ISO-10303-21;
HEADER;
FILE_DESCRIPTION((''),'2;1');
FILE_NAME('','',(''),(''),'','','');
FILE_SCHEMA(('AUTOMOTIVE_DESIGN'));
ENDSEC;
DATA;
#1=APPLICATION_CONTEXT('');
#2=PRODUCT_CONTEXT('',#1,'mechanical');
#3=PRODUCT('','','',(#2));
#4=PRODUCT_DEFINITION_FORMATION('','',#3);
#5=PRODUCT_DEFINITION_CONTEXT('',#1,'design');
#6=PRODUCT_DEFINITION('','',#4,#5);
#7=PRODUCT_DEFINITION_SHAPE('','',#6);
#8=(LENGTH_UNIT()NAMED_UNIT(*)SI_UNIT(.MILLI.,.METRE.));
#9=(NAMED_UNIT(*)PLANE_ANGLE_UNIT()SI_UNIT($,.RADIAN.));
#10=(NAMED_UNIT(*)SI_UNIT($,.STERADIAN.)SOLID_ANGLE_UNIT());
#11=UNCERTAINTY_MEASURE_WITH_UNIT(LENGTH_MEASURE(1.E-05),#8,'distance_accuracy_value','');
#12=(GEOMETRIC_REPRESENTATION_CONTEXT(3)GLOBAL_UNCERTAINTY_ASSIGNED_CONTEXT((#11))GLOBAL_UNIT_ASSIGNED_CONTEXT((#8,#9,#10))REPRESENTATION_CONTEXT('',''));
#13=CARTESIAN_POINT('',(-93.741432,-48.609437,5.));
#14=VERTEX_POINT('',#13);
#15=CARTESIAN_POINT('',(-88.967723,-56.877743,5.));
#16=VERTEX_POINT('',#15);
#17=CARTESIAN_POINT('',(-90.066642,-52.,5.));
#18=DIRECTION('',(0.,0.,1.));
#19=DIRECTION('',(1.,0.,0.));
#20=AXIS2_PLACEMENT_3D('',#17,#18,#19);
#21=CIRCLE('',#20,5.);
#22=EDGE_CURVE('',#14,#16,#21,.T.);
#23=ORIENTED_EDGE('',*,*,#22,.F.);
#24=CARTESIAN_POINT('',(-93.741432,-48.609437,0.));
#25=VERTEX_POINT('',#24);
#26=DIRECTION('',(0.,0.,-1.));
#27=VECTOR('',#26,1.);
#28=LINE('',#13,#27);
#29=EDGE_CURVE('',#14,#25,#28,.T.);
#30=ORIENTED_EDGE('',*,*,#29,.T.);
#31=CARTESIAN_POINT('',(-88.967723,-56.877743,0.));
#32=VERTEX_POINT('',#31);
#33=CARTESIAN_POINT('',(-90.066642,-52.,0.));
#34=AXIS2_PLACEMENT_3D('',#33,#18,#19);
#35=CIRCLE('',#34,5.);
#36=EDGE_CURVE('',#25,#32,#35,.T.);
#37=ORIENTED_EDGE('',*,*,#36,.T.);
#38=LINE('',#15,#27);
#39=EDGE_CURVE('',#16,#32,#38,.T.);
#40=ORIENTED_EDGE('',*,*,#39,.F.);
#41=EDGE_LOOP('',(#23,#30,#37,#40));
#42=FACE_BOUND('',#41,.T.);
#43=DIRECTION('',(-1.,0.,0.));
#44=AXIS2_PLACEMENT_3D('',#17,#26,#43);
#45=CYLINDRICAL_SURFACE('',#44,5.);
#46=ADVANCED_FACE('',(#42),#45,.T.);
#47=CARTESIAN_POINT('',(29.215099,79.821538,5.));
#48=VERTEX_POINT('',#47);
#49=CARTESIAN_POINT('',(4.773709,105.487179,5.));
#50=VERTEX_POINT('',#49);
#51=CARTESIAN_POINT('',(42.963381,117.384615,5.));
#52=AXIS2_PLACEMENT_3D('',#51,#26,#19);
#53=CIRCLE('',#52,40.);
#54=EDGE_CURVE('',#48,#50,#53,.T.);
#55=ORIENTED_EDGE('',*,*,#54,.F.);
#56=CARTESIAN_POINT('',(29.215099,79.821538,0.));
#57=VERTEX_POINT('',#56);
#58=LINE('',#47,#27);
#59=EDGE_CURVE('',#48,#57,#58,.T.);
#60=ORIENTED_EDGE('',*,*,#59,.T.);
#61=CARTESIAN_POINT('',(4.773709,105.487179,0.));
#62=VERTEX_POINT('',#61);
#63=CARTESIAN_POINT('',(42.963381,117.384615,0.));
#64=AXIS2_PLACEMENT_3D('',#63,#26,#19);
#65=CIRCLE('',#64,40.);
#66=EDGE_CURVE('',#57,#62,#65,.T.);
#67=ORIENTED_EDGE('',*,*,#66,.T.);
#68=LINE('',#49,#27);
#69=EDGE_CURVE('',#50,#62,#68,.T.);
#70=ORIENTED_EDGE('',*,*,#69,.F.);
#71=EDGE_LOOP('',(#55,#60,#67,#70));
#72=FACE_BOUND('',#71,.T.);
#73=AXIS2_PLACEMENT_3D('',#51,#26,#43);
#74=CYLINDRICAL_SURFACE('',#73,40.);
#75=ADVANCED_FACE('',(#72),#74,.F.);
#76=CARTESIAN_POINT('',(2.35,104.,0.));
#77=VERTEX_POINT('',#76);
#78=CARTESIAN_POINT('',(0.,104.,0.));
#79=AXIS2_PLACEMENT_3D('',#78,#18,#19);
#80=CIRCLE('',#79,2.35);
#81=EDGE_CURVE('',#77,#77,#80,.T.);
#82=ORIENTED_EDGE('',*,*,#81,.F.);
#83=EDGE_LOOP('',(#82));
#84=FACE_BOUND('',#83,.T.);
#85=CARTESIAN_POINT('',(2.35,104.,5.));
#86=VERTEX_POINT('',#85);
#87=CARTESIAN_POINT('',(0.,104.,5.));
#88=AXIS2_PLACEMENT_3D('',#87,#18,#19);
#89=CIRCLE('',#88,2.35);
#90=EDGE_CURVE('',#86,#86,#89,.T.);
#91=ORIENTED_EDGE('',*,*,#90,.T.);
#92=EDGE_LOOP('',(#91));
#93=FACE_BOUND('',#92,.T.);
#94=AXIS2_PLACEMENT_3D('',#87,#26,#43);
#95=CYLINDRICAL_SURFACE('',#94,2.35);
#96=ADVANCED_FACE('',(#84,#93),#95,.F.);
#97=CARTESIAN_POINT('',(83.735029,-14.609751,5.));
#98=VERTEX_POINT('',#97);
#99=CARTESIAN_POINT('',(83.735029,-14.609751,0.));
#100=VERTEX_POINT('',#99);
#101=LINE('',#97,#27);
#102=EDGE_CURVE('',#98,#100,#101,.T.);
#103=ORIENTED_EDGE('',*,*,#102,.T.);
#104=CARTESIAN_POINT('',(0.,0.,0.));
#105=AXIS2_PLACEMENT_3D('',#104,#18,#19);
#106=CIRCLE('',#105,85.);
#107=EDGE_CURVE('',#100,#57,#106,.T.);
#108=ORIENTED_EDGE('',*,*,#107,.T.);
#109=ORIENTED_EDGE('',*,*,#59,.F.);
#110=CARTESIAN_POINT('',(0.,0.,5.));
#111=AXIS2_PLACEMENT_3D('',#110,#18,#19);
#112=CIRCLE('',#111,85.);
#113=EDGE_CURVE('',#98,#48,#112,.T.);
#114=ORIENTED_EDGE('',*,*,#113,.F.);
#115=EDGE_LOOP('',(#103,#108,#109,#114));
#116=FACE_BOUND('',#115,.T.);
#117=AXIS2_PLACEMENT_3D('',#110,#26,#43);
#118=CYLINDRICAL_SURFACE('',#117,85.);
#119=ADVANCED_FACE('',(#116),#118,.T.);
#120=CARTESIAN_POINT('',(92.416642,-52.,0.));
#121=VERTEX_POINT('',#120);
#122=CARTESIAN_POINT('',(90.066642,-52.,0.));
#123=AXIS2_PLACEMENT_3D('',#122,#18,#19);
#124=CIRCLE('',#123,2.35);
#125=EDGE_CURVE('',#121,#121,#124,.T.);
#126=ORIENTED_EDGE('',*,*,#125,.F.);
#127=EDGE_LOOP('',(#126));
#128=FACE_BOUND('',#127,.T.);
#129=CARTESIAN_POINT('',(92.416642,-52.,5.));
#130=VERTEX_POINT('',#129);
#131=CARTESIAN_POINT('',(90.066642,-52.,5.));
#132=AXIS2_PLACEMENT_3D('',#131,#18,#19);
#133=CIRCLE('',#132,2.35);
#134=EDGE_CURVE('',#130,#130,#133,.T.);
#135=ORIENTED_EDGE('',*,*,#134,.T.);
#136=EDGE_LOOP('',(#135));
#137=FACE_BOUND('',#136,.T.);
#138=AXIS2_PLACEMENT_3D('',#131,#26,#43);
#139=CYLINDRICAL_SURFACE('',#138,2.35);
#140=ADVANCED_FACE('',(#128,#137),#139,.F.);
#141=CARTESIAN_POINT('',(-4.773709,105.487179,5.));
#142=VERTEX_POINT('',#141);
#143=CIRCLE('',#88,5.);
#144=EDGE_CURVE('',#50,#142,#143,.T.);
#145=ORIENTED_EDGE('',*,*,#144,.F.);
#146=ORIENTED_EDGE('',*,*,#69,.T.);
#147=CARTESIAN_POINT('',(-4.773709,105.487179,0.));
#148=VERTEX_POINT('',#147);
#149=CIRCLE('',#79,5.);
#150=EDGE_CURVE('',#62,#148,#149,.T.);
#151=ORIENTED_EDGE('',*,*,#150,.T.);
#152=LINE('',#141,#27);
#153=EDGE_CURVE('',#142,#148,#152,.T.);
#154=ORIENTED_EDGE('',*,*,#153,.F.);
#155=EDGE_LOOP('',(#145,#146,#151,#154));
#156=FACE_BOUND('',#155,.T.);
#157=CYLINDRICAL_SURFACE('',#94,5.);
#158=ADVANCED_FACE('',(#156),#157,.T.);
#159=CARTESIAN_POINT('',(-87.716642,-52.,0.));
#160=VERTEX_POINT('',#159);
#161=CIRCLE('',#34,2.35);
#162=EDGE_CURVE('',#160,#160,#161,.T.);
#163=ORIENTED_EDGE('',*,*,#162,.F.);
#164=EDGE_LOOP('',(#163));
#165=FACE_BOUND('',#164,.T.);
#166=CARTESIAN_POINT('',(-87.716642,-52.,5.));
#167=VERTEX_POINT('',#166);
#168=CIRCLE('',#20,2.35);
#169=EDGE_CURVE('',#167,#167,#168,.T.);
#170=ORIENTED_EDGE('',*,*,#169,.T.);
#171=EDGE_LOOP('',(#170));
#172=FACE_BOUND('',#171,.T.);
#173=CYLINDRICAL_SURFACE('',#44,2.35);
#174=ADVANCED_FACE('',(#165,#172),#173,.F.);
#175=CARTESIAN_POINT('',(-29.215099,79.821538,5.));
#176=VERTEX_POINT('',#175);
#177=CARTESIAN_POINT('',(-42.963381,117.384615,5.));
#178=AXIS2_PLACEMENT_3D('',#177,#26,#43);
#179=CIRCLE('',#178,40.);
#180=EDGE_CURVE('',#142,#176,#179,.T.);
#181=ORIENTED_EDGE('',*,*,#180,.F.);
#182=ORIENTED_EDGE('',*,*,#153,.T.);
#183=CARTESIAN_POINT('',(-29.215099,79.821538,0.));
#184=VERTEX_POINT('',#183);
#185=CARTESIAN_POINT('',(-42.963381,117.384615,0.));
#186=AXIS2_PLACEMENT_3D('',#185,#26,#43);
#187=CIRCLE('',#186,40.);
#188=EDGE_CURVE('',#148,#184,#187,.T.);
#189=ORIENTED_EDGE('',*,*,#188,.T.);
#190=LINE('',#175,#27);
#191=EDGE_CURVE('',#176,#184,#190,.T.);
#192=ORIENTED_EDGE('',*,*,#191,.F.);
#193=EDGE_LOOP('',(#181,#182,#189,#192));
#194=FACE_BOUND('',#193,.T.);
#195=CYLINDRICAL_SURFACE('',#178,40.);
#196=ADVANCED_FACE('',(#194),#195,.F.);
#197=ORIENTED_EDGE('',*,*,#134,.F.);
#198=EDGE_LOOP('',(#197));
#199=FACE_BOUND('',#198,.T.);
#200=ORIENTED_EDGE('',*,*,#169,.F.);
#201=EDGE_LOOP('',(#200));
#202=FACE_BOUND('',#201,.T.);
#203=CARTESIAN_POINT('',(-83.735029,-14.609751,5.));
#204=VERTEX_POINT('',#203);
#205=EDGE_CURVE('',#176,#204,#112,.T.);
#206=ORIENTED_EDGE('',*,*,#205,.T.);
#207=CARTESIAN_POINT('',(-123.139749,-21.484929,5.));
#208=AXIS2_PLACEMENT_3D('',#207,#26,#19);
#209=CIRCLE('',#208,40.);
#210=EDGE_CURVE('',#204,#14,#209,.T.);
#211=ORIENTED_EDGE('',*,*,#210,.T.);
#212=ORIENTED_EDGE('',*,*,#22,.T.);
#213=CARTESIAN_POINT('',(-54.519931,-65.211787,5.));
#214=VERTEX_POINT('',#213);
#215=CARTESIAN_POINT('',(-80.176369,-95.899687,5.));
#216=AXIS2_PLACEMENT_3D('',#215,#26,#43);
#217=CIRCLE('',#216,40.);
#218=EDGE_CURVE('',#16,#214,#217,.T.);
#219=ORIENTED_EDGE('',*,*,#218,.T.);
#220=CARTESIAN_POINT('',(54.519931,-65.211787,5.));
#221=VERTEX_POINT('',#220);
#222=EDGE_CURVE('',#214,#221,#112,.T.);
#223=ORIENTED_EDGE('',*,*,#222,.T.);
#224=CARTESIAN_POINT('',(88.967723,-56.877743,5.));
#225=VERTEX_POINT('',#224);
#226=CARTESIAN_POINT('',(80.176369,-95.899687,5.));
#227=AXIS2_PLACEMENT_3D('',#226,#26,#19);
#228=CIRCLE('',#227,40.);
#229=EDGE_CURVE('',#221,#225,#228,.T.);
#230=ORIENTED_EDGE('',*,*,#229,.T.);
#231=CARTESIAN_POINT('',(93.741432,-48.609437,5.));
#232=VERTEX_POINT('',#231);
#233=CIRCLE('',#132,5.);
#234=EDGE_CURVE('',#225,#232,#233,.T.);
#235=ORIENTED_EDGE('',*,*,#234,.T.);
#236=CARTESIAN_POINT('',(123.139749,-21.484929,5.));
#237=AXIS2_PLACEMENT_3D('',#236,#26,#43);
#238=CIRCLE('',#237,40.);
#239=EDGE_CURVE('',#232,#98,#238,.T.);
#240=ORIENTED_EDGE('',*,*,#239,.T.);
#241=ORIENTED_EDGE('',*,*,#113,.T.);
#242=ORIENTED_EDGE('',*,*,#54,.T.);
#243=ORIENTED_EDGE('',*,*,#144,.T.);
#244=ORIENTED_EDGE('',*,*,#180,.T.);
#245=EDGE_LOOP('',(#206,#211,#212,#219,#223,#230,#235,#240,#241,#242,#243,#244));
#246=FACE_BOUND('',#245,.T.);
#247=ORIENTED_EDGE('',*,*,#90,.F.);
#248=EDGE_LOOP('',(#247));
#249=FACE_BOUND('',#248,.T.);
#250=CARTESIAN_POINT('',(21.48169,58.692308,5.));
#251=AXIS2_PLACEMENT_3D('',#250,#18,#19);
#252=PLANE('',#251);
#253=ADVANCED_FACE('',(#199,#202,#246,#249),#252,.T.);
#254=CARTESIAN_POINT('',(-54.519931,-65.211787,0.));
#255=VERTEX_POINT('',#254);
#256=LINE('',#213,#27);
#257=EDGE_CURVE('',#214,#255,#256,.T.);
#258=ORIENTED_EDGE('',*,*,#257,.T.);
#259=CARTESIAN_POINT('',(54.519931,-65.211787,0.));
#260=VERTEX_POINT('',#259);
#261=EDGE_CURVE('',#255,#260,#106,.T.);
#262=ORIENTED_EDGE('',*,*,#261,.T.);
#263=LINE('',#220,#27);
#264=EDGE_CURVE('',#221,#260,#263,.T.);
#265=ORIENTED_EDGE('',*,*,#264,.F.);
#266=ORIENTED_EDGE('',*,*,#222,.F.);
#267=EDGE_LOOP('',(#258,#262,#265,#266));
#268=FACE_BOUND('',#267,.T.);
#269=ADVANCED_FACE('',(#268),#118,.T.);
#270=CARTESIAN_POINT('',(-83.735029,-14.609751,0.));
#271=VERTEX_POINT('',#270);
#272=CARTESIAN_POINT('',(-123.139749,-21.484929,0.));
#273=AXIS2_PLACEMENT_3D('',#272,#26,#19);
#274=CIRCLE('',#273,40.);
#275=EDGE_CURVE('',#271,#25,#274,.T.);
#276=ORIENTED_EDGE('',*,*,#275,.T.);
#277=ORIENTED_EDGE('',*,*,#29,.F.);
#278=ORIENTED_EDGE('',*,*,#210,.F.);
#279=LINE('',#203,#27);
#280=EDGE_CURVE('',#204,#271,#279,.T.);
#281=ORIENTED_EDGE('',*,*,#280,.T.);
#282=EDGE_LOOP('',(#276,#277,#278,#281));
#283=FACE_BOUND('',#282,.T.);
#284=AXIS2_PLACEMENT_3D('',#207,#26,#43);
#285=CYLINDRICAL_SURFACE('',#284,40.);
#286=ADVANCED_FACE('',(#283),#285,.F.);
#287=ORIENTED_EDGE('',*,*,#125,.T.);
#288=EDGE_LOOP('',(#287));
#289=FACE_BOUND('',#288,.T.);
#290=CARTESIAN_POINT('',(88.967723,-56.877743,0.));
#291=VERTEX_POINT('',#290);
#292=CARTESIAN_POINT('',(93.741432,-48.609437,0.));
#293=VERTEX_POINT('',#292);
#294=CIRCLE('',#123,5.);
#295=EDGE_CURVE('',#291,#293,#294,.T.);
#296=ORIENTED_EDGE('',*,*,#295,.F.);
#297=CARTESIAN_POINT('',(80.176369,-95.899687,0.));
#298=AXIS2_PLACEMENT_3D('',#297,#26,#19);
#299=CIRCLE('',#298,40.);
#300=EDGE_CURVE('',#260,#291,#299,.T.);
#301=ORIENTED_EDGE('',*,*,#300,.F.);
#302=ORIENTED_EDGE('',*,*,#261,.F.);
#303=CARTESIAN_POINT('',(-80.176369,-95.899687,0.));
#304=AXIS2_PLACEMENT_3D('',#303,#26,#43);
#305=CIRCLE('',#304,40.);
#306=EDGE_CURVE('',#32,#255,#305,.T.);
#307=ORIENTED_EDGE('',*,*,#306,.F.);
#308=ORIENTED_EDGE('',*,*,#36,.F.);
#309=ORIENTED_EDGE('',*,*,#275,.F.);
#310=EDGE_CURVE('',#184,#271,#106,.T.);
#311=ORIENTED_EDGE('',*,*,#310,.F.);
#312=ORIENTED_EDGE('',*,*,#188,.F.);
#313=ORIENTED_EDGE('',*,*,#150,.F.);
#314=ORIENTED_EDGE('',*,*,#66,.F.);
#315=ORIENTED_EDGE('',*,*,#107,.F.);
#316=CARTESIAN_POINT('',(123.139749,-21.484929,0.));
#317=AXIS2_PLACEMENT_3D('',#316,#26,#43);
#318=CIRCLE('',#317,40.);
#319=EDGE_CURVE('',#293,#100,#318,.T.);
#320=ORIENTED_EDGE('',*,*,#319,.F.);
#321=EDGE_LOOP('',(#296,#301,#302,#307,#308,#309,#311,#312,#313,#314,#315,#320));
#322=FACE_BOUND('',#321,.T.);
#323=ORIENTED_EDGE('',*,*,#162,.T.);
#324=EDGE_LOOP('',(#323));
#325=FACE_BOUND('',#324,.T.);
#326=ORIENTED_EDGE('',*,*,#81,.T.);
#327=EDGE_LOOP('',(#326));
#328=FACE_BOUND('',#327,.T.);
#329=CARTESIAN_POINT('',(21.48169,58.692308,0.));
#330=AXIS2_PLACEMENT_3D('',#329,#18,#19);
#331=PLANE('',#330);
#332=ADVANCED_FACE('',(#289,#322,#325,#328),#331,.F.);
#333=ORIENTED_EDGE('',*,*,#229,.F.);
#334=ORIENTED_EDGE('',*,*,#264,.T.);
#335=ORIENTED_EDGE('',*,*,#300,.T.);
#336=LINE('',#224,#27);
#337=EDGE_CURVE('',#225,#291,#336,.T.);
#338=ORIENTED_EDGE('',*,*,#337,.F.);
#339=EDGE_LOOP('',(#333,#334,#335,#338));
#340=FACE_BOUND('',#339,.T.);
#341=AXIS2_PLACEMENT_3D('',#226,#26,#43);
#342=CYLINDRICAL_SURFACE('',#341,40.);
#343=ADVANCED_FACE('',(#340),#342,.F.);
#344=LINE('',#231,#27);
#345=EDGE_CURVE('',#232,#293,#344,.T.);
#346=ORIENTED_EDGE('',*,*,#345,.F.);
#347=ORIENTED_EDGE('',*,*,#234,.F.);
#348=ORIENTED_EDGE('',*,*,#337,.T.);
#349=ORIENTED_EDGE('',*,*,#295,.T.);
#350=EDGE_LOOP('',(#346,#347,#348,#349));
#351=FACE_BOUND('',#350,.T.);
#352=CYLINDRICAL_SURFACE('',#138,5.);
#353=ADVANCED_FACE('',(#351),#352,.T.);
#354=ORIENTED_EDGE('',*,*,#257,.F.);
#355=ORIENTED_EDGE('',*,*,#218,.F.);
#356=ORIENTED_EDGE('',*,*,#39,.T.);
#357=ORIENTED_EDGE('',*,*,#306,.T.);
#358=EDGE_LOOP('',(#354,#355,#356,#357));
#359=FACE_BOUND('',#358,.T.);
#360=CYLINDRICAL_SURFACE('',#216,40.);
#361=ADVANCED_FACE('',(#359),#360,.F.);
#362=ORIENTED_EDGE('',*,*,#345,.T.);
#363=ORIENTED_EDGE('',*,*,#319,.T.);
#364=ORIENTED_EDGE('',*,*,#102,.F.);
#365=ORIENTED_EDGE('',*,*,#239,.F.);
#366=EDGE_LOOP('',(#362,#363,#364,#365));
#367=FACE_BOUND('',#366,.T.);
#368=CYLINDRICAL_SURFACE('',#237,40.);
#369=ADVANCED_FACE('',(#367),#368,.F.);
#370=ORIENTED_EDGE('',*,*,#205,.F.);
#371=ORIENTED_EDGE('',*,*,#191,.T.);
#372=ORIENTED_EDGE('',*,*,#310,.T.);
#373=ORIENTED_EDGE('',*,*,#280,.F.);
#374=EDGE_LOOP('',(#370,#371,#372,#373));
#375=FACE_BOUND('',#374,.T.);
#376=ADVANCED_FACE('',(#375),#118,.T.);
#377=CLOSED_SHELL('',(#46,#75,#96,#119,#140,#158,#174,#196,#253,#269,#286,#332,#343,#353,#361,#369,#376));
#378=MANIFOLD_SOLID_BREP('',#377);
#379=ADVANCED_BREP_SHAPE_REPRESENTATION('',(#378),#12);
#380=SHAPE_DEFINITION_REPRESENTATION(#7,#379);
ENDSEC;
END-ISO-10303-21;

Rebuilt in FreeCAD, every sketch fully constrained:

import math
import FreeCAD as App
import Part
import Sketcher
from FreeCAD import Vector
Q = App.Units.Quantity

doc = App.newDocument("Part")
body = doc.addObject("PartDesign::Body", "Body")

sketch1 = body.newObject("Sketcher::SketchObject", "Sketch")
sketch1.AttachmentSupport = (doc.getObject("XY_Plane"), [""])
sketch1.MapMode = "FlatFace"
sketch1.addGeometry([
    Part.ArcOfCircle(Part.Circle(Vector(0, 0, 0), Vector(0, 0, 1), 85), math.radians(110.102889), math.radians(189.897111)),
    Part.ArcOfCircle(Part.Circle(Vector(-123.139749, -21.484929, 0), Vector(0, 0, 1), 40), math.radians(-42.696338), math.radians(9.897111)),
    Part.ArcOfCircle(Part.Circle(Vector(-90.066642, -52, 0), Vector(0, 0, 1), 5), math.radians(137.303662), math.radians(282.696338)),
    Part.ArcOfCircle(Part.Circle(Vector(-80.176369, -95.899687, 0), Vector(0, 0, 1), 40), math.radians(50.102889), math.radians(102.696338)),
    Part.ArcOfCircle(Part.Circle(Vector(0, 0, 0), Vector(0, 0, 1), 85), math.radians(-129.897111), math.radians(-50.102889)),
    Part.ArcOfCircle(Part.Circle(Vector(80.176369, -95.899687, 0), Vector(0, 0, 1), 40), math.radians(77.303662), math.radians(129.897111)),
    Part.ArcOfCircle(Part.Circle(Vector(90.066642, -52, 0), Vector(0, 0, 1), 5), math.radians(-102.696338), math.radians(42.696338)),
    Part.ArcOfCircle(Part.Circle(Vector(123.139749, -21.484929, 0), Vector(0, 0, 1), 40), math.radians(170.102889), math.radians(222.696338)),
    Part.ArcOfCircle(Part.Circle(Vector(0, 0, 0), Vector(0, 0, 1), 85), math.radians(-9.897111), math.radians(69.897111)),
    Part.ArcOfCircle(Part.Circle(Vector(42.963381, 117.384615, 0), Vector(0, 0, 1), 40), math.radians(-162.696338), math.radians(-110.102889)),
    Part.ArcOfCircle(Part.Circle(Vector(0, 104, 0), Vector(0, 0, 1), 5), math.radians(17.303662), math.radians(162.696338)),
    Part.ArcOfCircle(Part.Circle(Vector(-42.963381, 117.384615, 0), Vector(0, 0, 1), 40), math.radians(-69.897111), math.radians(-17.303662)),
    Part.Circle(Vector(-90.066642, -52, 0), Vector(0, 0, 1), 2.35),
    Part.Circle(Vector(90.066642, -52, 0), Vector(0, 0, 1), 2.35),
    Part.Circle(Vector(0, 104, 0), Vector(0, 0, 1), 2.35),
], False)
sketch1.addConstraint([
    Sketcher.Constraint("Tangent", 0, 2, 1, 2),
    Sketcher.Constraint("Tangent", 1, 1, 2, 1),
    Sketcher.Constraint("Tangent", 2, 2, 3, 2),
    Sketcher.Constraint("Tangent", 3, 1, 4, 1),
    Sketcher.Constraint("Tangent", 4, 2, 5, 2),
    Sketcher.Constraint("Tangent", 5, 1, 6, 1),
    Sketcher.Constraint("Tangent", 6, 2, 7, 2),
    Sketcher.Constraint("Tangent", 7, 1, 8, 1),
    Sketcher.Constraint("Tangent", 8, 2, 9, 2),
    Sketcher.Constraint("Tangent", 9, 1, 10, 1),
    Sketcher.Constraint("Tangent", 10, 2, 11, 2),
    Sketcher.Constraint("Tangent", 11, 1, 0, 1),
    Sketcher.Constraint("Coincident", 0, 3, -1, 1),
    Sketcher.Constraint("Coincident", 4, 3, -1, 1),
    Sketcher.Constraint("Coincident", 8, 3, -1, 1),
    Sketcher.Constraint("Coincident", 12, 3, 2, 3),
    Sketcher.Constraint("Coincident", 13, 3, 6, 3),
    Sketcher.Constraint("Coincident", 14, 3, 10, 3),
    Sketcher.Constraint("Equal", 1, 3),
    Sketcher.Constraint("Equal", 0, 4),
    Sketcher.Constraint("Equal", 3, 5),
    Sketcher.Constraint("Equal", 2, 6),
    Sketcher.Constraint("Equal", 5, 7),
    Sketcher.Constraint("Equal", 4, 8),
    Sketcher.Constraint("Equal", 7, 9),
    Sketcher.Constraint("Equal", 6, 10),
    Sketcher.Constraint("Equal", 9, 11),
    Sketcher.Constraint("Equal", 12, 13),
    Sketcher.Constraint("Equal", 13, 14),
    Sketcher.Constraint("Symmetric", 2, 3, 6, 3, -2),
    Sketcher.Constraint("PointOnObject", 10, 3, -2),
    Sketcher.Constraint("Radius", 0, Q("85 mm")),
    Sketcher.Constraint("Radius", 1, Q("40 mm")),
    Sketcher.Constraint("Radius", 2, Q("5 mm")),
    Sketcher.Constraint("Diameter", 12, Q("4.7 mm")),
    Sketcher.Constraint("DistanceY", 2, 3, -1, 1, Q("52 mm")),
    Sketcher.Constraint("DistanceY", -1, 1, 10, 3, Q("104 mm")),
    Sketcher.Constraint("DistanceX", 1, 1, 3, 1, Q("39.221501 mm")),
])
pad1 = body.newObject("PartDesign::Pad", "Pad")
pad1.Profile = sketch1
pad1.Length = 5

doc.recompute()
